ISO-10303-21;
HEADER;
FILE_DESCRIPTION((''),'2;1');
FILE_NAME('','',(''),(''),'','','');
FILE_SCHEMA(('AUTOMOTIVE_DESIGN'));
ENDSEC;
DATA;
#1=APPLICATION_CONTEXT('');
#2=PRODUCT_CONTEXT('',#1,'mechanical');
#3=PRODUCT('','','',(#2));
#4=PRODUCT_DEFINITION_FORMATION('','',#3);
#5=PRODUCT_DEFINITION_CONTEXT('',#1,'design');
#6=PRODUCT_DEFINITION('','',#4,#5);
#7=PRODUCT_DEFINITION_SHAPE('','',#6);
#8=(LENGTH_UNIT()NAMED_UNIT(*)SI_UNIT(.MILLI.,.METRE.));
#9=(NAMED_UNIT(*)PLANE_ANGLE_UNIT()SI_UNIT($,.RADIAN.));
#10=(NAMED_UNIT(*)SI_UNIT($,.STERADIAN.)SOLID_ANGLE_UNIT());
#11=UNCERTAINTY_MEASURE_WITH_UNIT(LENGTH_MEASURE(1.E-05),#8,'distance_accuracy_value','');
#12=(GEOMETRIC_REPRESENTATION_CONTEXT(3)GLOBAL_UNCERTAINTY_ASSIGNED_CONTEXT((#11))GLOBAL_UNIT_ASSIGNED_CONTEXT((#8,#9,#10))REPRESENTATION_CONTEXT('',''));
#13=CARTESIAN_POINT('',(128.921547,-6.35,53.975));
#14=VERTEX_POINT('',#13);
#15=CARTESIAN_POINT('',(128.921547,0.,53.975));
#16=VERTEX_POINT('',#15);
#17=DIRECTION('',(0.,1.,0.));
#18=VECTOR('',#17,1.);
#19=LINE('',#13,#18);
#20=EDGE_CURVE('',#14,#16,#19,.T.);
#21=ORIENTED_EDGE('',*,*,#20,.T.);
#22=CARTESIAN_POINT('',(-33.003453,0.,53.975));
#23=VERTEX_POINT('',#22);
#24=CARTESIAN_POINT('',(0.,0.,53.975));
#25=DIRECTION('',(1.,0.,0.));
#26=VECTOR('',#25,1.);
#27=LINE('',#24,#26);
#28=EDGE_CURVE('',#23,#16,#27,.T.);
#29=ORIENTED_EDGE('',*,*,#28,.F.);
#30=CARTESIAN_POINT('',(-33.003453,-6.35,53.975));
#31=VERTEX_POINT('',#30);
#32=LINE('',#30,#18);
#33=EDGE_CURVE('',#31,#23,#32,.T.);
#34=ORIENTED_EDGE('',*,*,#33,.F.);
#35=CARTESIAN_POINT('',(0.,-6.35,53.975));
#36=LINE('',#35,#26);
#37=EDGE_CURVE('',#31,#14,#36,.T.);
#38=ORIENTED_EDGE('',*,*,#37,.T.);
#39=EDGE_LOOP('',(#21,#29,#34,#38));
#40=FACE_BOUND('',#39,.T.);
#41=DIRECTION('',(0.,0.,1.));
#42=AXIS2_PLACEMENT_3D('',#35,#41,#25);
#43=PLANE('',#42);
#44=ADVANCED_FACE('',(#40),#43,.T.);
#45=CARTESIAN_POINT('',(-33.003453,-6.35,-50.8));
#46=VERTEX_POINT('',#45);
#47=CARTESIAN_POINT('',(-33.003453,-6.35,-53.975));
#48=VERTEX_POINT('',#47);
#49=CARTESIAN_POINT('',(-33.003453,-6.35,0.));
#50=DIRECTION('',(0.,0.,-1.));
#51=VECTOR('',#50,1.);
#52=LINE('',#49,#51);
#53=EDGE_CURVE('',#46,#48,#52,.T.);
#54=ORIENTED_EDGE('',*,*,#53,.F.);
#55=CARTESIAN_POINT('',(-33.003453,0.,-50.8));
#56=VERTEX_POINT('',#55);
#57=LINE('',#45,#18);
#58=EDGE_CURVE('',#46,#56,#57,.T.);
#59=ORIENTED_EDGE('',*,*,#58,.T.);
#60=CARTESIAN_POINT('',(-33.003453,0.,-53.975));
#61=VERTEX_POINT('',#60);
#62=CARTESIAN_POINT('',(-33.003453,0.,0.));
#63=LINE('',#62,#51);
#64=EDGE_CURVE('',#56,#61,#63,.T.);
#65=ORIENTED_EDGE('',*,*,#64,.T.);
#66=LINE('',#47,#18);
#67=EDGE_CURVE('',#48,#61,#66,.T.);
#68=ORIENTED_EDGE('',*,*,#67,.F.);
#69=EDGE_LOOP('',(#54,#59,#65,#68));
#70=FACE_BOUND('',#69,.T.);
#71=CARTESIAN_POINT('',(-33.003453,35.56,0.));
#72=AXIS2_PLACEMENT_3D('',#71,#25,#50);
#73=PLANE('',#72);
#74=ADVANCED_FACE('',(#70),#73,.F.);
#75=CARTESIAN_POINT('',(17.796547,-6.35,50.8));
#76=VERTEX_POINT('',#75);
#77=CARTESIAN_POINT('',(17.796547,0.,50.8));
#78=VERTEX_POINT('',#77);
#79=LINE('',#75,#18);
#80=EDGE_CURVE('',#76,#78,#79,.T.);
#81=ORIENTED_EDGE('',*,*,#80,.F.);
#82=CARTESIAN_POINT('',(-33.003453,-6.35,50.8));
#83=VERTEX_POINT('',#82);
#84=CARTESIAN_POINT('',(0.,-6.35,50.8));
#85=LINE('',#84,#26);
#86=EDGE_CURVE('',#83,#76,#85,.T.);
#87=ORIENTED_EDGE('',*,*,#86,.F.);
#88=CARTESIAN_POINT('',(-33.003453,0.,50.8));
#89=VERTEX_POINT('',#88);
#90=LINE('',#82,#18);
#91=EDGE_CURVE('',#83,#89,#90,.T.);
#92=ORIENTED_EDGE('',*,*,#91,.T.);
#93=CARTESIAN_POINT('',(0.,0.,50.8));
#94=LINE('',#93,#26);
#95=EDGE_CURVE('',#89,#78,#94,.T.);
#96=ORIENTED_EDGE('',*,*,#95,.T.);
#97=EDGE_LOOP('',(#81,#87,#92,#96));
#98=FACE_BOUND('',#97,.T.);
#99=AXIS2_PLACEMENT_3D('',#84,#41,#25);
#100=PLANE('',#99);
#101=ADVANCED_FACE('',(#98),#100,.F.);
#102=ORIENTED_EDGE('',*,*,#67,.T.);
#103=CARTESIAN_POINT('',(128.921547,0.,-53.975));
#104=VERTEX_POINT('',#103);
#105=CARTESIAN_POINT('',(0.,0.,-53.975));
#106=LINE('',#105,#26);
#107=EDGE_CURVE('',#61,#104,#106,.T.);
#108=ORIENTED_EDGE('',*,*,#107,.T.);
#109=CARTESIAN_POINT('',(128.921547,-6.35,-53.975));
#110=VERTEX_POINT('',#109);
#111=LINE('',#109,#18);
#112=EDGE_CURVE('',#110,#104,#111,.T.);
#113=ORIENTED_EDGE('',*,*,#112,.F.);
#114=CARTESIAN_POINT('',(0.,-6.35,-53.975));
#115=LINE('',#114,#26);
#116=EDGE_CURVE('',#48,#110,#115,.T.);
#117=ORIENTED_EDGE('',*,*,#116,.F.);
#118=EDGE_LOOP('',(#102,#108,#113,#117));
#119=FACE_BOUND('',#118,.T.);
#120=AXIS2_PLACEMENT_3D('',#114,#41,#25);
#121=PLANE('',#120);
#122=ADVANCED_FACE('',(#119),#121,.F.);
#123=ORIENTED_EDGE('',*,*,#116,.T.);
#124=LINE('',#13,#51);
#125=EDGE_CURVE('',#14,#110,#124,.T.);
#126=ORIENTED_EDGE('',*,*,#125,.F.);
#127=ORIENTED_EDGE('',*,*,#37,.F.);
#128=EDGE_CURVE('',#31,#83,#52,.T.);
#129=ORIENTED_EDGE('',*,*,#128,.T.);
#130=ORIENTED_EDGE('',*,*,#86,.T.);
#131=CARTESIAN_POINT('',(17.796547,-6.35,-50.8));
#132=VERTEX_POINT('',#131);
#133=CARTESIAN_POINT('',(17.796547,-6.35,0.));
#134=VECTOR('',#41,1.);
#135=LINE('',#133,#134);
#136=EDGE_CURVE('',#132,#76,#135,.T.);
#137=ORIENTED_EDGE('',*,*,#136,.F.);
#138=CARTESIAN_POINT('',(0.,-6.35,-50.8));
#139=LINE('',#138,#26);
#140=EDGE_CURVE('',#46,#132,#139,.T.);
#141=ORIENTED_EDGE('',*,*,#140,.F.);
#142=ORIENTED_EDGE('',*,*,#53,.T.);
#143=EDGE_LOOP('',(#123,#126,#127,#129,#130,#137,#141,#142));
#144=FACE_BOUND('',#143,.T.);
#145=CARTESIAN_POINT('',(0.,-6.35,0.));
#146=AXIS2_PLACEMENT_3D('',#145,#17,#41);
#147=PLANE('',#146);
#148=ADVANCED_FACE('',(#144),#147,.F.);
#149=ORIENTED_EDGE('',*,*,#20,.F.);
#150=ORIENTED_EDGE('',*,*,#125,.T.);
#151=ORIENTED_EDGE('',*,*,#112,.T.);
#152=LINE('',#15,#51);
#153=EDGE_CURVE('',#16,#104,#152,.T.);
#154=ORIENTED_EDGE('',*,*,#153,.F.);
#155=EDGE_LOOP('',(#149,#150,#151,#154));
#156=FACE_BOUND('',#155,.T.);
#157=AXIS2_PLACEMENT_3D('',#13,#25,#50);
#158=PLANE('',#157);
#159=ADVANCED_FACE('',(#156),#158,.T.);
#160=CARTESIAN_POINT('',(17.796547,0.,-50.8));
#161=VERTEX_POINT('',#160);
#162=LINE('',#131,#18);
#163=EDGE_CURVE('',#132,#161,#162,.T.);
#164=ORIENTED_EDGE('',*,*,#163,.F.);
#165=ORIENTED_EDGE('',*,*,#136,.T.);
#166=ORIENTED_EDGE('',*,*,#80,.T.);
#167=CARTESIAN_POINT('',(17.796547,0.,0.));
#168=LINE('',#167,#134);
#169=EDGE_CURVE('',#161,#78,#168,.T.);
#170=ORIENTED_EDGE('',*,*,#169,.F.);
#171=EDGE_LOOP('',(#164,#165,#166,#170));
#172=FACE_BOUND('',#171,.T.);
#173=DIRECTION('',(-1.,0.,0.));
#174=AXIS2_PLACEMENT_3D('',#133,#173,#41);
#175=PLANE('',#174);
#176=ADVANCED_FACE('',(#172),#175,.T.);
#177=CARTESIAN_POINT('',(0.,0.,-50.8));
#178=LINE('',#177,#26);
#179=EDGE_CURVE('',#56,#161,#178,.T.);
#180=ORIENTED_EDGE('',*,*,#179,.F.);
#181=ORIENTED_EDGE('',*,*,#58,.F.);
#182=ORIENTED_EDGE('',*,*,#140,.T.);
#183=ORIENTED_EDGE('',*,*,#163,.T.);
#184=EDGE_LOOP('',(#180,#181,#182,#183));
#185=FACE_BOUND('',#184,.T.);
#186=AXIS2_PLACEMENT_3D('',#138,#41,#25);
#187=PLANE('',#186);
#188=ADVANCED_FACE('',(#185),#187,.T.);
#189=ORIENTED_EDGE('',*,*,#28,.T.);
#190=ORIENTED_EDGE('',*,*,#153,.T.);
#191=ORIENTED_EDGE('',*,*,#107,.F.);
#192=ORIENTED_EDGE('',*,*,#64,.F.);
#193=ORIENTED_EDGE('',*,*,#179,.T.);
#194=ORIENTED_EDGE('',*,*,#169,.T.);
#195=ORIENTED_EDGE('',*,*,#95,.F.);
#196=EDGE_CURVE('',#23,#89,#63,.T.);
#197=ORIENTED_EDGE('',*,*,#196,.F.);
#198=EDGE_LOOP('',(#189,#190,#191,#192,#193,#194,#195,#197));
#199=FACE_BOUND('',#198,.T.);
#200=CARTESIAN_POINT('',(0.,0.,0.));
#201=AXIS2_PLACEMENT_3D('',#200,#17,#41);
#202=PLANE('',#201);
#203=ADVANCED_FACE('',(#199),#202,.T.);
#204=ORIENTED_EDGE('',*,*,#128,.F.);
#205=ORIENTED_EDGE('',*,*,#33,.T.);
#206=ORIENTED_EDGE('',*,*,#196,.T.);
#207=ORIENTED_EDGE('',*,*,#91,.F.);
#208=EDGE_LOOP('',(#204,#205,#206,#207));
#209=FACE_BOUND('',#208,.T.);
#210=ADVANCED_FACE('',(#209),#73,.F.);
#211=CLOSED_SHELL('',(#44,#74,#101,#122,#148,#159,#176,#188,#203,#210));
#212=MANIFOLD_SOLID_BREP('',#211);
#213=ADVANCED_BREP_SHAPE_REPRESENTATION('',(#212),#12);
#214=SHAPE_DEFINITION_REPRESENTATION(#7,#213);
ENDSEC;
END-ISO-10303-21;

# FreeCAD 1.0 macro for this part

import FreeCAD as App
import Part
import Sketcher

V = App.Vector
Q = App.Units.Quantity

doc = App.newDocument("Part")
body = doc.addObject("PartDesign::Body", "Body")

sketch1 = body.newObject("Sketcher::SketchObject", "Sketch")
sketch1.AttachmentSupport = (doc.getObject("XZ_Plane"), [""])
sketch1.MapMode = "FlatFace"
sketch1.addGeometry(Part.LineSegment(V(-129, -54, 0), V(-129, 54, 0)), False)
sketch1.addGeometry(Part.LineSegment(V(-129, 54, 0), V(129, 54, 0)), False)
sketch1.addGeometry(Part.LineSegment(V(129, 54, 0), V(129, -54, 0)), False)
sketch1.addGeometry(Part.LineSegment(V(129, -54, 0), V(-129, -54, 0)), False)
sketch1.addConstraint(Sketcher.Constraint("Coincident", 0, 2, 1, 1))
sketch1.addConstraint(Sketcher.Constraint("Coincident", 1, 2, 2, 1))
sketch1.addConstraint(Sketcher.Constraint("Coincident", 2, 2, 3, 1))
sketch1.addConstraint(Sketcher.Constraint("Coincident", 3, 2, 0, 1))
sketch1.addConstraint(Sketcher.Constraint("Vertical", 0))
sketch1.addConstraint(Sketcher.Constraint("Horizontal", 1))
sketch1.addConstraint(Sketcher.Constraint("Vertical", 2))
sketch1.addConstraint(Sketcher.Constraint("Horizontal", 3))
sketch1.addConstraint(Sketcher.Constraint("Symmetric", 0, 2, 2, 2, -1, 1))
sketch1.addConstraint(Sketcher.Constraint("DistanceY", 0, 1, 0, 2, Q("4.25 in")))
sketch1.addConstraint(Sketcher.Constraint("DistanceX", 1, 1, 1, 2, 257.843095))
pad1 = body.newObject("PartDesign::Pad", "Pad")
pad1.Profile = sketch1
pad1.Length = Q("0.25 in")

sketch2 = body.newObject("Sketcher::SketchObject", "Sketch001")
sketch2.AttachmentSupport = (doc.getObject("XZ_Plane"), [""])
sketch2.MapMode = "FlatFace"
sketch2.addGeometry(Part.LineSegment(V(-128.9, -54, 0), V(-128.9, 54, 0)), False)
sketch2.addGeometry(Part.LineSegment(V(-128.9, 54, 0), V(-122.6, 54, 0)), False)
sketch2.addGeometry(Part.LineSegment(V(-122.6, 54, 0), V(-122.6, 45.3, 0)), False)
sketch2.addGeometry(Part.LineSegment(V(-122.6, 45.3, 0), V(-125.7, 45.3, 0)), False)
sketch2.addGeometry(Part.LineSegment(V(-125.7, 45.3, 0), V(-125.7, -45.3, 0)), False)
sketch2.addGeometry(Part.LineSegment(V(-125.7, -45.3, 0), V(-122.6, -45.3, 0)), False)
sketch2.addGeometry(Part.LineSegment(V(-122.6, -45.3, 0), V(-122.6, -54, 0)), False)
sketch2.addGeometry(Part.LineSegment(V(-122.6, -54, 0), V(-128.9, -54, 0)), False)
sketch2.addGeometry(Part.LineSegment(V(-93.7, -54, 0), V(-100.1, -54, 0)), False)
sketch2.addGeometry(Part.LineSegment(V(-100.1, -54, 0), V(-100.1, -45.3, 0)), False)
sketch2.addGeometry(Part.LineSegment(V(-100.1, -45.3, 0), V(-96.9, -45.3, 0)), False)
sketch2.addGeometry(Part.LineSegment(V(-96.9, -45.3, 0), V(-96.9, 45.3, 0)), False)
sketch2.addGeometry(Part.LineSegment(V(-96.9, 45.3, 0), V(-100.1, 45.3, 0)), False)
sketch2.addGeometry(Part.LineSegment(V(-100.1, 45.3, 0), V(-100.1, 54, 0)), False)
sketch2.addGeometry(Part.LineSegment(V(-100.1, 54, 0), V(-93.7, 54, 0)), False)
sketch2.addGeometry(Part.LineSegment(V(-93.7, 54, 0), V(-93.7, -54, 0)), False)
sketch2.addConstraint(Sketcher.Constraint("Coincident", 0, 2, 1, 1))
sketch2.addConstraint(Sketcher.Constraint("Coincident", 1, 2, 2, 1))
sketch2.addConstraint(Sketcher.Constraint("Coincident", 2, 2, 3, 1))
sketch2.addConstraint(Sketcher.Constraint("Coincident", 3, 2, 4, 1))
sketch2.addConstraint(Sketcher.Constraint("Coincident", 4, 2, 5, 1))
sketch2.addConstraint(Sketcher.Constraint("Coincident", 5, 2, 6, 1))
sketch2.addConstraint(Sketcher.Constraint("Coincident", 6, 2, 7, 1))
sketch2.addConstraint(Sketcher.Constraint("Coincident", 7, 2, 0, 1))
sketch2.addConstraint(Sketcher.Constraint("Coincident", 8, 2, 9, 1))
sketch2.addConstraint(Sketcher.Constraint("Coincident", 9, 2, 10, 1))
sketch2.addConstraint(Sketcher.Constraint("Coincident", 10, 2, 11, 1))
sketch2.addConstraint(Sketcher.Constraint("Coincident", 11, 2, 12, 1))
sketch2.addConstraint(Sketcher.Constraint("Coincident", 12, 2, 13, 1))
sketch2.addConstraint(Sketcher.Constraint("Coincident", 13, 2, 14, 1))
sketch2.addConstraint(Sketcher.Constraint("Coincident", 14, 2, 15, 1))
sketch2.addConstraint(Sketcher.Constraint("Coincident", 15, 2, 8, 1))
sketch2.addConstraint(Sketcher.Constraint("Vertical", 0))
sketch2.addConstraint(Sketcher.Constraint("Horizontal", 1))
sketch2.addConstraint(Sketcher.Constraint("Vertical", 2))
sketch2.addConstraint(Sketcher.Constraint("Horizontal", 3))
sketch2.addConstraint(Sketcher.Constraint("Vertical", 4))
sketch2.addConstraint(Sketcher.Constraint("Horizontal", 5))
sketch2.addConstraint(Sketcher.Constraint("Vertical", 6))
sketch2.addConstraint(Sketcher.Constraint("Horizontal", 7))
sketch2.addConstraint(Sketcher.Constraint("Horizontal", 8))
sketch2.addConstraint(Sketcher.Constraint("Vertical", 9))
sketch2.addConstraint(Sketcher.Constraint("Horizontal", 10))
sketch2.addConstraint(Sketcher.Constraint("Vertical", 11))
sketch2.addConstraint(Sketcher.Constraint("Horizontal", 12))
sketch2.addConstraint(Sketcher.Constraint("Vertical", 13))
sketch2.addConstraint(Sketcher.Constraint("Horizontal", 14))
sketch2.addConstraint(Sketcher.Constraint("Vertical", 15))
sketch2.addConstraint(Sketcher.Constraint("Symmetric", 2, 2, 5, 2, -1))
sketch2.addConstraint(Sketcher.Constraint("Symmetric", 9, 2, 12, 2, -1))
sketch2.addConstraint(Sketcher.Constraint("Horizontal", 7, 2, 8, 2))
sketch2.addConstraint(Sketcher.Constraint("Horizontal", 5, 2, 9, 2))
sketch2.addConstraint(Sketcher.Constraint("Horizontal", 1, 2, 13, 2))
sketch2.addConstraint(Sketcher.Constraint("Equal", 7, 8))
sketch2.addConstraint(Sketcher.Constraint("Equal", 5, 10))
sketch2.addConstraint(Sketcher.Constraint("Equal", 2, 6))
sketch2.addConstraint(Sketcher.Constraint("DistanceX", 1, 1, 1, 2, Q("0.25 in")))
sketch2.addConstraint(Sketcher.Constraint("DistanceY", 0, 1, 0, 2, Q("4.25 in")))
sketch2.addConstraint(Sketcher.Constraint("DistanceY", 2, 2, 2, 1, Q("0.34 in")))
sketch2.addConstraint(Sketcher.Constraint("DistanceX", 3, 2, 3, 1, Q("0.125 in")))
sketch2.addConstraint(Sketcher.Constraint("DistanceX", 4, 2, 8, 2, Q("1.01 in")))
sketch2.addConstraint(Sketcher.Constraint("DistanceX", 0, 2, -1, 1, 128.921547))
pad2 = body.newObject("PartDesign::Pad", "Pad001")
pad2.Profile = sketch2
pad2.Length = Q("0.75 in")
pad2.Reversed = True

sketch3 = body.newObject("Sketcher::SketchObject", "Sketch002")
sketch3.AttachmentSupport = (doc.getObject("XY_Plane"), [""])
sketch3.MapMode = "FlatFace"
sketch3.AttachmentOffset = App.Placement(V(0, 0, 2.125 * 25.4), App.Rotation())
sketch3.addGeometry(Part.Circle(V(-111.3, -1.7, 0), V(0, 0, 1), 0.8), False)
sketch3.addConstraint(Sketcher.Constraint("Diameter", 0, Q("0.06 in")))
sketch3.addConstraint(Sketcher.Constraint("DistanceY", 0, 3, -1, 1, Q("0.065 in")))
sketch3.addConstraint(Sketcher.Constraint("DistanceX", 0, 3, -1, 1, 111.332047))
pocket1 = body.newObject("PartDesign::Pocket", "Pocket")
pocket1.Profile = sketch3
pocket1.Length = Q("0.25 in")
doc.recompute()

mirrored = body.newObject("PartDesign::Mirrored", "Mirrored")
mirrored.Originals = [pocket1]
mirrored.MirrorPlane = (doc.getObject("XY_Plane"), [""])
body.Tip = mirrored

sketch4 = body.newObject("Sketcher::SketchObject", "Sketch003")
sketch4.AttachmentSupport = (doc.getObject("XZ_Plane"), [""])
sketch4.MapMode = "FlatFace"
sketch4.addGeometry(Part.LineSegment(V(-84, -51, 0), V(-84, 51, 0)), False)
sketch4.addGeometry(Part.LineSegment(V(-84, 51, 0), V(18, 51, 0)), False)
sketch4.addGeometry(Part.LineSegment(V(18, 51, 0), V(18, -51, 0)), False)
sketch4.addGeometry(Part.LineSegment(V(18, -51, 0), V(-84, -51, 0)), False)
sketch4.addConstraint(Sketcher.Constraint("Coincident", 0, 2, 1, 1))
sketch4.addConstraint(Sketcher.Constraint("Coincident", 1, 2, 2, 1))
sketch4.addConstraint(Sketcher.Constraint("Coincident", 2, 2, 3, 1))
sketch4.addConstraint(Sketcher.Constraint("Coincident", 3, 2, 0, 1))
sketch4.addConstraint(Sketcher.Constraint("Vertical", 0))
sketch4.addConstraint(Sketcher.Constraint("Horizontal", 1))
sketch4.addConstraint(Sketcher.Constraint("Vertical", 2))
sketch4.addConstraint(Sketcher.Constraint("Horizontal", 3))
sketch4.addConstraint(Sketcher.Constraint("Equal", 3, 0))
sketch4.addConstraint(Sketcher.Constraint("DistanceX", 1, 1, 1, 2, Q("4 in")))
sketch4.addConstraint(Sketcher.Constraint("DistanceY", -1, 1, 0, 2, Q("2 in")))
sketch4.addConstraint(Sketcher.Constraint("DistanceX", 0, 2, -1, 1, 83.803453))
pocket2 = body.newObject("PartDesign::Pocket", "Pocket001")
pocket2.Profile = sketch4
pocket2.Length = Q("0.25 in")
pocket2.Reversed = True

sketch5 = body.newObject("Sketcher::SketchObject", "Sketch004")
sketch5.AttachmentSupport = (doc.getObject("XZ_Plane"), [""])
sketch5.MapMode = "FlatFace"
sketch5.addGeometry(Part.LineSegment(V(-164, -91, 0), V(-164, 55, 0)), False)
sketch5.addGeometry(Part.LineSegment(V(-164, 55, 0), V(-33, 55, 0)), False)
sketch5.addGeometry(Part.LineSegment(V(-33, 55, 0), V(-33, -91, 0)), False)
sketch5.addGeometry(Part.LineSegment(V(-33, -91, 0), V(-164, -91, 0)), False)
sketch5.addConstraint(Sketcher.Constraint("Coincident", 0, 2, 1, 1))
sketch5.addConstraint(Sketcher.Constraint("Coincident", 1, 2, 2, 1))
sketch5.addConstraint(Sketcher.Constraint("Coincident", 2, 2, 3, 1))
sketch5.addConstraint(Sketcher.Constraint("Coincident", 3, 2, 0, 1))
sketch5.addConstraint(Sketcher.Constraint("Vertical", 0))
sketch5.addConstraint(Sketcher.Constraint("Horizontal", 1))
sketch5.addConstraint(Sketcher.Constraint("Vertical", 2))
sketch5.addConstraint(Sketcher.Constraint("Horizontal", 3))
sketch5.addConstraint(Sketcher.Constraint("DistanceX", 1, 1, 1, 2, 130.944506))
sketch5.addConstraint(Sketcher.Constraint("DistanceY", 0, 1, 0, 2, 146.927255))
sketch5.addConstraint(Sketcher.Constraint("DistanceX", 0, 2, -1, 1, 163.947959))
sketch5.addConstraint(Sketcher.Constraint("DistanceY", 2, 2, -1, 1, 91.498779))
pocket3 = body.newObject("PartDesign::Pocket", "Pocket002")
pocket3.Profile = sketch5
pocket3.Type = "ThroughAll"
pocket3.Midplane = True

doc.recompute()
